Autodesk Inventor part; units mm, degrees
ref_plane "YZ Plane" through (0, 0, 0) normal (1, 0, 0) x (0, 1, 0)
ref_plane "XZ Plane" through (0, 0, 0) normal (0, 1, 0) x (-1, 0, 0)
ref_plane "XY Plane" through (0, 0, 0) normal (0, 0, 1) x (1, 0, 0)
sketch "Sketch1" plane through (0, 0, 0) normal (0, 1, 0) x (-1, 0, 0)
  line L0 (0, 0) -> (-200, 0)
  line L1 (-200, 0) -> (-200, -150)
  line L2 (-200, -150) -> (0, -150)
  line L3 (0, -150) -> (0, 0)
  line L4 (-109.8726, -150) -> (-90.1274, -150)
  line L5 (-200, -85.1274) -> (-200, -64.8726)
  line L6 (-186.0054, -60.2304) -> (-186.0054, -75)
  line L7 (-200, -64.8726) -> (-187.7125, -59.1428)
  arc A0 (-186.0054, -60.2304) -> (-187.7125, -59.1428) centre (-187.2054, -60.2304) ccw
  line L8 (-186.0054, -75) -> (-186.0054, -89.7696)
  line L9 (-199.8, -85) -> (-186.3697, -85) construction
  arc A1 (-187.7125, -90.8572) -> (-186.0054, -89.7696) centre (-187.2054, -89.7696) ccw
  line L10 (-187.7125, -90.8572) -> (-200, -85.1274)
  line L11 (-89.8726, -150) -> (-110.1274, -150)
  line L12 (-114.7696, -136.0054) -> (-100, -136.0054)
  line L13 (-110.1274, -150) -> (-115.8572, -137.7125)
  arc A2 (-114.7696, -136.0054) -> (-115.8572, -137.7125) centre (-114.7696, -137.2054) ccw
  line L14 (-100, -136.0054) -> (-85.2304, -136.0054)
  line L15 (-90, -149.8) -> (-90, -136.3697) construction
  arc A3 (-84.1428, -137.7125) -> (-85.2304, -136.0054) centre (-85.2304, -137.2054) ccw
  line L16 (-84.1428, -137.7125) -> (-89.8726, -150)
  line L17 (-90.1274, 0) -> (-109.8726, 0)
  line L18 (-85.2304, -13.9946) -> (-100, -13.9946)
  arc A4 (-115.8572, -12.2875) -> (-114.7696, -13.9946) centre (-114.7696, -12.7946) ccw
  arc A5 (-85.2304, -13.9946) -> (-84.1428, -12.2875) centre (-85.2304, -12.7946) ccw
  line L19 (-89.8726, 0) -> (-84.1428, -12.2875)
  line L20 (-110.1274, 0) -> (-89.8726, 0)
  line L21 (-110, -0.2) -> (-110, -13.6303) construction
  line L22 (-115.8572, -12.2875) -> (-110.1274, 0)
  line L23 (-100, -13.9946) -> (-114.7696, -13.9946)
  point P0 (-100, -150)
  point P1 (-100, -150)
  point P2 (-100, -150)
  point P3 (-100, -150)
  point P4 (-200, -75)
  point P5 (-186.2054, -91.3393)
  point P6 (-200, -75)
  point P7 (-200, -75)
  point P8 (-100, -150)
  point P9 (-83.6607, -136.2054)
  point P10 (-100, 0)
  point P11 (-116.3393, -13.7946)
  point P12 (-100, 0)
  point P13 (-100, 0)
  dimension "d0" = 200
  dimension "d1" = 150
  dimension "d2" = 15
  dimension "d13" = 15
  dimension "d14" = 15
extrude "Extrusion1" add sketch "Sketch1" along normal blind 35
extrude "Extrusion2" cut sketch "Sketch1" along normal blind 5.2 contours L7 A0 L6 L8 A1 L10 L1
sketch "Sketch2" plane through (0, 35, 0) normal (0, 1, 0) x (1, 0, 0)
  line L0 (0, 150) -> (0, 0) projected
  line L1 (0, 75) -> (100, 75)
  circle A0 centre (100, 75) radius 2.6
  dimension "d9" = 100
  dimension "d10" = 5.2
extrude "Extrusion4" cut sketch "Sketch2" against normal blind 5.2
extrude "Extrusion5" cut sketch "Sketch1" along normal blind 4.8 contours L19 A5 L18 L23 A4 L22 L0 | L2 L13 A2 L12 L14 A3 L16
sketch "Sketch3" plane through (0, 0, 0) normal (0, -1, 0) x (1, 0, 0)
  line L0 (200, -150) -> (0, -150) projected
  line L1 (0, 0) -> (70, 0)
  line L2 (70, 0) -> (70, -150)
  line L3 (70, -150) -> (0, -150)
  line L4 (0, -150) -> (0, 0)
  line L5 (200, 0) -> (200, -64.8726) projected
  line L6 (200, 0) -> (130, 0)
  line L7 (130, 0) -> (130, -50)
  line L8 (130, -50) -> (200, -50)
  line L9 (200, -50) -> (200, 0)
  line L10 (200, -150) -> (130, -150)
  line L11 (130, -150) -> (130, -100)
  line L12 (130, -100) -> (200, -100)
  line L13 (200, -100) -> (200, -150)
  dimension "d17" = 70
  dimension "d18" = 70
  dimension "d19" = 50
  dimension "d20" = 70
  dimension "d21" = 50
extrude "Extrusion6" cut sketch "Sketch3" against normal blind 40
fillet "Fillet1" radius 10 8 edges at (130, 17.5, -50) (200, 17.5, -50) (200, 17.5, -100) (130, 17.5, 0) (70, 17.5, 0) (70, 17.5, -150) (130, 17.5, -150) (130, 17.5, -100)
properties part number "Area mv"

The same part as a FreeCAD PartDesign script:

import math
import FreeCAD as App
import Part
import Sketcher
from FreeCAD import Vector
Q = App.Units.Quantity


def edges_at(feature, points):
    """Names of the edges that pass closest to the given points."""
    edges = feature.Shape.Edges
    near = lambda p: min(range(len(edges)), key=lambda i: edges[i].distToShape(Part.Vertex(*p))[0])
    return sorted({f"Edge{near(p) + 1}" for p in points})


def add_polygon(sketch, points):
    """Adds a closed chain of lines whose ends are joined by coincident constraints."""
    first, n = sketch.GeometryCount, len(points)
    for a, b in zip(points, points[1:] + points[:1]):
        sketch.addGeometry(Part.LineSegment(App.Vector(*a, 0), App.Vector(*b, 0)), False)
    for i in range(n):
        sketch.addConstraint(Sketcher.Constraint("Coincident", first + i, 2, first + (i + 1) % n, 1))

doc = App.newDocument("Part")
body = doc.addObject("PartDesign::Body", "Body")

# Sketch on XZ plane
sketch1 = body.newObject("Sketcher::SketchObject", "Sketch")
sketch1.AttachmentSupport = (doc.getObject("XZ_Plane"), [""])
sketch1.MapMode = "FlatFace"
add_polygon(sketch1, [(0, -150), (0, 0), (200, 0), (200, -150)])  # lines 0-3
sketch1.addConstraint(Sketcher.Constraint("Vertical", 0))
sketch1.addConstraint(Sketcher.Constraint("Horizontal", 1))
sketch1.addConstraint(Sketcher.Constraint("Vertical", 2))
sketch1.addConstraint(Sketcher.Constraint("Horizontal", 3))
sketch1.addConstraint(Sketcher.Constraint("Coincident", 0, 2, -1, 1))
sketch1.addConstraint(Sketcher.Constraint("DistanceX", 1, 1, 1, 2, Q("200 mm")))
sketch1.addConstraint(Sketcher.Constraint("DistanceY", 0, 1, 0, 2, Q("150 mm")))
pad1 = body.newObject("PartDesign::Pad", "Pad")
pad1.Profile = sketch1
pad1.Length = 35
pad1.Reversed = True

# Sketch on XZ plane
sketch2 = body.newObject("Sketcher::SketchObject", "Sketch001")
sketch2.AttachmentSupport = (doc.getObject("XZ_Plane"), [""])
sketch2.MapMode = "FlatFace"
sketch2.addGeometry(Part.LineSegment(Vector(187.7, -59.1, 0), Vector(200, -64.9, 0)), False)
sketch2.addGeometry(Part.LineSegment(Vector(200, -64.9, 0), Vector(200, -85.1, 0)), False)
sketch2.addGeometry(Part.LineSegment(Vector(200, -85.1, 0), Vector(187.7, -90.9, 0)), False)
sketch2.addGeometry(Part.ArcOfCircle(Part.Circle(Vector(187.2, -89.8, 0), Vector(0, 0, 1), 1.2), math.radians(180), math.radians(295)), False)
sketch2.addGeometry(Part.LineSegment(Vector(186, -89.8, 0), Vector(186, -60.2, 0)), False)
sketch2.addGeometry(Part.ArcOfCircle(Part.Circle(Vector(187.2, -60.2, 0), Vector(0, 0, 1), 1.2), math.radians(65), math.radians(180)), False)
sketch2.addConstraint(Sketcher.Constraint("Coincident", 0, 2, 1, 1))
sketch2.addConstraint(Sketcher.Constraint("Coincident", 1, 2, 2, 1))
sketch2.addConstraint(Sketcher.Constraint("Tangent", 2, 2, 3, 2))
sketch2.addConstraint(Sketcher.Constraint("Tangent", 3, 1, 4, 1))
sketch2.addConstraint(Sketcher.Constraint("Tangent", 4, 2, 5, 2))
sketch2.addConstraint(Sketcher.Constraint("Tangent", 5, 1, 0, 1))
sketch2.addConstraint(Sketcher.Constraint("Vertical", 1))
sketch2.addConstraint(Sketcher.Constraint("Vertical", 4))
sketch2.addConstraint(Sketcher.Constraint("Equal", 3, 5))
sketch2.addConstraint(Sketcher.Constraint("Vertical", 2, 2, 5, 1))
sketch2.addConstraint(Sketcher.Constraint("DistanceX", -1, 1, 0, 2, Q("200 mm")))
sketch2.addConstraint(Sketcher.Constraint("Radius", 3, Q("1.2 mm")))
sketch2.addConstraint(Sketcher.Constraint("Angle", 0, Q("-25.0002 deg")))
sketch2.addConstraint(Sketcher.Constraint("DistanceY", 1, 2, 1, 1, Q("20.2548 mm")))
sketch2.addConstraint(Sketcher.Constraint("DistanceY", 4, 1, 4, 2, Q("29.5392 mm")))
sketch2.addConstraint(Sketcher.Constraint("DistanceY", 3, 3, -1, 1, Q("89.7696 mm")))
pocket1 = body.newObject("PartDesign::Pocket", "Pocket")
pocket1.Profile = sketch2
pocket1.Length = 5.2

# Sketch on XZ plane
sketch3 = body.newObject("Sketcher::SketchObject", "Sketch002")
sketch3.AttachmentSupport = (doc.getObject("XZ_Plane"), [""])
sketch3.MapMode = "FlatFace"
sketch3.AttachmentOffset = App.Placement(Vector(0, 0, -35), App.Rotation())
sketch3.addGeometry(Part.Circle(Vector(100, -75, 0), Vector(0, 0, 1), 2.6), False)
sketch3.addConstraint(Sketcher.Constraint("Diameter", 0, Q("5.2 mm")))
sketch3.addConstraint(Sketcher.Constraint("DistanceX", -1, 1, 0, 3, Q("100 mm")))
sketch3.addConstraint(Sketcher.Constraint("DistanceY", 0, 3, -1, 1, Q("75 mm")))
pocket2 = body.newObject("PartDesign::Pocket", "Pocket001")
pocket2.Profile = sketch3
pocket2.Length = 5.2
pocket2.Reversed = True

# Sketch on XZ plane
sketch4 = body.newObject("Sketcher::SketchObject", "Sketch003")
sketch4.AttachmentSupport = (doc.getObject("XZ_Plane"), [""])
sketch4.MapMode = "FlatFace"
sketch4.addGeometry(Part.LineSegment(Vector(84.1, -12.3, 0), Vector(89.9, 0, 0)), False)
sketch4.addGeometry(Part.LineSegment(Vector(89.9, 0, 0), Vector(110.1, 0, 0)), False)
sketch4.addGeometry(Part.LineSegment(Vector(110.1, 0, 0), Vector(115.9, -12.3, 0)), False)
sketch4.addGeometry(Part.ArcOfCircle(Part.Circle(Vector(114.8, -12.8, 0), Vector(0, 0, 1), 1.2), math.radians(-90), math.radians(25)), False)
sketch4.addGeometry(Part.LineSegment(Vector(114.8, -14, 0), Vector(85.2, -14, 0)), False)
sketch4.addGeometry(Part.ArcOfCircle(Part.Circle(Vector(85.2, -12.8, 0), Vector(0, 0, 1), 1.2), math.radians(155), math.radians(270)), False)
sketch4.addGeometry(Part.LineSegment(Vector(110.1, -150, 0), Vector(89.9, -150, 0)), False)
sketch4.addGeometry(Part.LineSegment(Vector(89.9, -150, 0), Vector(84.1, -137.7, 0)), False)
sketch4.addGeometry(Part.ArcOfCircle(Part.Circle(Vector(85.2, -137.2, 0), Vector(0, 0, 1), 1.2), math.radians(90), math.radians(205)), False)
sketch4.addGeometry(Part.LineSegment(Vector(85.2, -136, 0), Vector(114.8, -136, 0)), False)
sketch4.addGeometry(Part.ArcOfCircle(Part.Circle(Vector(114.8, -137.2, 0), Vector(0, 0, 1), 1.2), math.radians(-25), math.radians(90)), False)
sketch4.addGeometry(Part.LineSegment(Vector(115.9, -137.7, 0), Vector(110.1, -150, 0)), False)
sketch4.addConstraint(Sketcher.Constraint("Coincident", 0, 2, 1, 1))
sketch4.addConstraint(Sketcher.Constraint("Coincident", 1, 2, 2, 1))
sketch4.addConstraint(Sketcher.Constraint("Tangent", 2, 2, 3, 2))
sketch4.addConstraint(Sketcher.Constraint("Tangent", 3, 1, 4, 1))
sketch4.addConstraint(Sketcher.Constraint("Tangent", 4, 2, 5, 2))
sketch4.addConstraint(Sketcher.Constraint("Tangent", 5, 1, 0, 1))
sketch4.addConstraint(Sketcher.Constraint("Coincident", 6, 2, 7, 1))
sketch4.addConstraint(Sketcher.Constraint("Tangent", 7, 2, 8, 2))
sketch4.addConstraint(Sketcher.Constraint("Tangent", 8, 1, 9, 1))
sketch4.addConstraint(Sketcher.Constraint("Tangent", 9, 2, 10, 2))
sketch4.addConstraint(Sketcher.Constraint("Tangent", 10, 1, 11, 1))
sketch4.addConstraint(Sketcher.Constraint("Coincident", 11, 2, 6, 1))
sketch4.addConstraint(Sketcher.Constraint("Horizontal", 1))
sketch4.addConstraint(Sketcher.Constraint("Horizontal", 4))
sketch4.addConstraint(Sketcher.Constraint("Horizontal", 6))
sketch4.addConstraint(Sketcher.Constraint("Horizontal", 9))
sketch4.addConstraint(Sketcher.Constraint("Equal", 3, 5))
sketch4.addConstraint(Sketcher.Constraint("Equal", 5, 8))
sketch4.addConstraint(Sketcher.Constraint("Equal", 8, 10))
sketch4.addConstraint(Sketcher.Constraint("PointOnObject", 0, 2, -1))
sketch4.addConstraint(Sketcher.Constraint("Parallel", 2, 7))
sketch4.addConstraint(Sketcher.Constraint("Parallel", 0, 11))
sketch4.addConstraint(Sketcher.Constraint("Horizontal", 2, 2, 5, 1))
sketch4.addConstraint(Sketcher.Constraint("Vertical", 5, 3, 8, 3))
sketch4.addConstraint(Sketcher.Constraint("Vertical", 3, 3, 10, 3))
sketch4.addConstraint(Sketcher.Constraint("Vertical", 0, 2, 6, 2))
sketch4.addConstraint(Sketcher.Constraint("DistanceY", 6, 2, -1, 1, Q("150 mm")))
sketch4.addConstraint(Sketcher.Constraint("Radius", 3, Q("1.2 mm")))
sketch4.addConstraint(Sketcher.Constraint("Angle", 0, Q("64.9998 deg")))
sketch4.addConstraint(Sketcher.Constraint("DistanceX", 1, 1, 1, 2, Q("20.2548 mm")))
sketch4.addConstraint(Sketcher.Constraint("DistanceX", 4, 2, 4, 1, Q("29.5392 mm")))
sketch4.addConstraint(Sketcher.Constraint("DistanceX", -1, 1, 3, 3, Q("114.7696 mm")))
pocket3 = body.newObject("PartDesign::Pocket", "Pocket002")
pocket3.Profile = sketch4
pocket3.Length = 4.8

# Sketch on XZ plane
sketch5 = body.newObject("Sketcher::SketchObject", "Sketch004")
sketch5.AttachmentSupport = (doc.getObject("XZ_Plane"), [""])
sketch5.MapMode = "FlatFace"
add_polygon(sketch5, [(0, -150), (70, -150), (70, 0), (0, 0)])  # lines 0-3
add_polygon(sketch5, [(130, -150), (200, -150), (200, -100), (130, -100)])  # lines 4-7
add_polygon(sketch5, [(200, -50), (200, 0), (130, 0), (130, -50)])  # lines 8-11
sketch5.addConstraint(Sketcher.Constraint("Horizontal", 0))
sketch5.addConstraint(Sketcher.Constraint("Vertical", 1))
sketch5.addConstraint(Sketcher.Constraint("Horizontal", 2))
sketch5.addConstraint(Sketcher.Constraint("Vertical", 3))
sketch5.addConstraint(Sketcher.Constraint("Horizontal", 4))
sketch5.addConstraint(Sketcher.Constraint("Vertical", 5))
sketch5.addConstraint(Sketcher.Constraint("Horizontal", 6))
sketch5.addConstraint(Sketcher.Constraint("Vertical", 7))
sketch5.addConstraint(Sketcher.Constraint("Vertical", 8))
sketch5.addConstraint(Sketcher.Constraint("Horizontal", 9))
sketch5.addConstraint(Sketcher.Constraint("Vertical", 10))
sketch5.addConstraint(Sketcher.Constraint("Horizontal", 11))
sketch5.addConstraint(Sketcher.Constraint("Coincident", 2, 2, -1, 1))
sketch5.addConstraint(Sketcher.Constraint("PointOnObject", 8, 2, -1))
sketch5.addConstraint(Sketcher.Constraint("Horizontal", 3, 2, 4, 2))
sketch5.addConstraint(Sketcher.Constraint("Vertical", 5, 2, 8, 2))
sketch5.addConstraint(Sketcher.Constraint("Vertical", 7, 2, 9, 2))
sketch5.addConstraint(Sketcher.Constraint("Equal", 2, 4))
sketch5.addConstraint(Sketcher.Constraint("Equal", 7, 8))
sketch5.addConstraint(Sketcher.Constraint("DistanceX", 0, 1, 0, 2, Q("70 mm")))
sketch5.addConstraint(Sketcher.Constraint("DistanceY", 5, 1, 5, 2, Q("50 mm")))
sketch5.addConstraint(Sketcher.Constraint("DistanceY", 6, 2, 10, 2, Q("50 mm")))
sketch5.addConstraint(Sketcher.Constraint("DistanceX", -1, 1, 4, 2, Q("200 mm")))
pocket4 = body.newObject("PartDesign::Pocket", "Pocket003")
pocket4.Profile = sketch5
pocket4.Length = 40
doc.recompute()

fillet = body.newObject("PartDesign::Fillet", "Fillet")
fillet.Base = (pocket4, edges_at(pocket4, [
    (130, 17.5, -50),
    (200, 17.5, -50),
    (200, 17.5, -100),
    (130, 17.5, 0),
    (70, 17.5, 0),
    (70, 17.5, -150),
    (130, 17.5, -150),
    (130, 17.5, -100),
]))
fillet.Radius = 10

doc.recompute()
